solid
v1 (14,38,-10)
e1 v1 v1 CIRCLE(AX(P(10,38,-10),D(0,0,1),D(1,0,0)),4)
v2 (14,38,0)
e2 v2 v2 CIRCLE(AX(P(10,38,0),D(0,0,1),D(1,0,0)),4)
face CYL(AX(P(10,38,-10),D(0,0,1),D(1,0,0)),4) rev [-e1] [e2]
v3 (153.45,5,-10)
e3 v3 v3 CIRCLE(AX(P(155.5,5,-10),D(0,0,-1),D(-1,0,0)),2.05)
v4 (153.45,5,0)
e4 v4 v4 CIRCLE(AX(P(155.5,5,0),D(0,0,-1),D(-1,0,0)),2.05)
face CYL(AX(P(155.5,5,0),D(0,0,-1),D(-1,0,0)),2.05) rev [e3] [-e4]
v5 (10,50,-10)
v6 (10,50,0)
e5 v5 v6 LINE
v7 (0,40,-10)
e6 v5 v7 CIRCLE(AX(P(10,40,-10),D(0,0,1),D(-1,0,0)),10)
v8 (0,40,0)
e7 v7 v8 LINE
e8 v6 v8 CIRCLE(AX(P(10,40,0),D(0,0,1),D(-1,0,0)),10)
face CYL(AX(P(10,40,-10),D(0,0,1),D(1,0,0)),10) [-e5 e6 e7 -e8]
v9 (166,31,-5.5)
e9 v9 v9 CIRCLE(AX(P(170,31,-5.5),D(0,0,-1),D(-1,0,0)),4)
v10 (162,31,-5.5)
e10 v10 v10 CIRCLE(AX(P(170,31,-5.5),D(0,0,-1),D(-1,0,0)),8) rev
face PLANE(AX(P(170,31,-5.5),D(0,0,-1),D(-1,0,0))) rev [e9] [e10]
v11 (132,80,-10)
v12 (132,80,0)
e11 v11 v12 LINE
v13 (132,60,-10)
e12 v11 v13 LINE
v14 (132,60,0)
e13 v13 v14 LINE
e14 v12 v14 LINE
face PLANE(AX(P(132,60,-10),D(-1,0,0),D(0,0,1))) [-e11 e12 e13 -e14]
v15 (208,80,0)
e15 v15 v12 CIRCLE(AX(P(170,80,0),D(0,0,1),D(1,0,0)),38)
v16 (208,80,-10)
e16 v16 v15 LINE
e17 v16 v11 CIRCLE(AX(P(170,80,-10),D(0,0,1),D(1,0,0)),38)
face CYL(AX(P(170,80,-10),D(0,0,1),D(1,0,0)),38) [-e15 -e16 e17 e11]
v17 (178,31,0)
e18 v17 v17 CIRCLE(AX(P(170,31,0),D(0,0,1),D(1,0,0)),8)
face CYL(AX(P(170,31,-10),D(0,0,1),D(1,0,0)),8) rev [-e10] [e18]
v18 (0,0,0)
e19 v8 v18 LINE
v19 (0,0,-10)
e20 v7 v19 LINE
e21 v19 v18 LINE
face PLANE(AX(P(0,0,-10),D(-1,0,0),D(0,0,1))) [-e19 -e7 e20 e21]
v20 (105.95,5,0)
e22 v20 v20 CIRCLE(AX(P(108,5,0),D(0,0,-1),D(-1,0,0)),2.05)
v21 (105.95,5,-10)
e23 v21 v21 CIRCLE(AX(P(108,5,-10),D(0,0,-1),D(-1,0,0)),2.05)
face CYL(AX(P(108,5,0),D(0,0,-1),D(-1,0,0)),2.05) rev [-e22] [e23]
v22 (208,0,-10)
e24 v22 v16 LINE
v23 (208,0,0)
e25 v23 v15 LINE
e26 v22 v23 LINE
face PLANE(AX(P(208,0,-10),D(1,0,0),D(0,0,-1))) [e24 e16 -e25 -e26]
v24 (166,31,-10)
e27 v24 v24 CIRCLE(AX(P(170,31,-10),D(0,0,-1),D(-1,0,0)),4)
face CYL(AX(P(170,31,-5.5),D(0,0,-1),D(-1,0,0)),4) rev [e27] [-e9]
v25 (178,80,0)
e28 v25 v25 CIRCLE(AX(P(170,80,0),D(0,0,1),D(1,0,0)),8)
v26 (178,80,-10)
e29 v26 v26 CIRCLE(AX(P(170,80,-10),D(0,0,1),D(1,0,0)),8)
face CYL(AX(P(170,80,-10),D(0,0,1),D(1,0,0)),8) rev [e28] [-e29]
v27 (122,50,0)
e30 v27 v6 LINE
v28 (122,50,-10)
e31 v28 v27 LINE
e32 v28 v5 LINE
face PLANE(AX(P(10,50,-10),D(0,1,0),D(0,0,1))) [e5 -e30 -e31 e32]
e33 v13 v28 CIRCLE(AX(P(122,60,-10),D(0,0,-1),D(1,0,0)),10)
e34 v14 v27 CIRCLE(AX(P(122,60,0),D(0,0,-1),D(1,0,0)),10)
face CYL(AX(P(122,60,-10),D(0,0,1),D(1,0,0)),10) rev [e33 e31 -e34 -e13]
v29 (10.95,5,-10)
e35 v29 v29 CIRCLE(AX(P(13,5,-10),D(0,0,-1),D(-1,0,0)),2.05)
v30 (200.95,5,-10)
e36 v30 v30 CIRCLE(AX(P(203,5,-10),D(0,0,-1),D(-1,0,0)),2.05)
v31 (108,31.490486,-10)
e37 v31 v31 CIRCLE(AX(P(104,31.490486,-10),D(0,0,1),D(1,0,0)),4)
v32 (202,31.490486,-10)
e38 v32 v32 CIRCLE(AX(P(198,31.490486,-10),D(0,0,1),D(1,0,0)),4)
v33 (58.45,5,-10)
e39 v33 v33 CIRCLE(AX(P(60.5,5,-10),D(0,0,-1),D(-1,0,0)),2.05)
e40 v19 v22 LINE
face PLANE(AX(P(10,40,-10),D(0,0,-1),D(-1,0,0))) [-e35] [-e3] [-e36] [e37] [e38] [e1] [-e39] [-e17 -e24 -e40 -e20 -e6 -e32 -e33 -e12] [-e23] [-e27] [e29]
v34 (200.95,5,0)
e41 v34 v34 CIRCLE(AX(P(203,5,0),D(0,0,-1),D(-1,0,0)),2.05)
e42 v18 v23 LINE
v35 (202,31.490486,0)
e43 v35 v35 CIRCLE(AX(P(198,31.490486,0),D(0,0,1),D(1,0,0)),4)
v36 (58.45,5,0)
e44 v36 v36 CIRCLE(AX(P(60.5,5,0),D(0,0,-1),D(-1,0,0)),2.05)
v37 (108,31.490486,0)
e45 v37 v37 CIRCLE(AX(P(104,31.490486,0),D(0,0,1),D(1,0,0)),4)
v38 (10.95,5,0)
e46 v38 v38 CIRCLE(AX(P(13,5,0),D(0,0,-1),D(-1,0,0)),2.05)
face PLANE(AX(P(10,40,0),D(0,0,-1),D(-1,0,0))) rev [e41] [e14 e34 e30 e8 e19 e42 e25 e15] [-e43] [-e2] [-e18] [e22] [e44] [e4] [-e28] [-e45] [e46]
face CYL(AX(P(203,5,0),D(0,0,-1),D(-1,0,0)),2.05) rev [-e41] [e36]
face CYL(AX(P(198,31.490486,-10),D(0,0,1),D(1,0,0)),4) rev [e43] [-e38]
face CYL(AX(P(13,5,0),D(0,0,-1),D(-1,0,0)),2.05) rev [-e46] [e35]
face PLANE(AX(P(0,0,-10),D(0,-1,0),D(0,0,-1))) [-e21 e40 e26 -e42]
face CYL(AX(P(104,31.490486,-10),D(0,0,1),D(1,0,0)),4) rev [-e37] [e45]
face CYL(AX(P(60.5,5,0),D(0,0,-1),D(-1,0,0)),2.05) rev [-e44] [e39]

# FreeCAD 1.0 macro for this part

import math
import FreeCAD as App
import Part
import Sketcher

V = App.Vector

doc = App.newDocument("Part")
params = doc.addObject("Spreadsheet::Sheet", "Params")
for row, (alias, value) in enumerate([
    ("sketch1_diameter", "16 mm"),
    ("sketch1_radius", "38 mm"),
    ("sketch1_radius2", "10 mm"),
    ("sketch1_width", "208 mm"),
    ("sketch1_height", "80 mm"),
    ("pad1_length", "10 mm"),
    ("sketch2_diameter", "4.1 mm"),
    ("sketch3_diameter", "16 mm"),
    ("sketch3_diameter2", "8 mm"),
    ("pad2_length", "4.5 mm"),
    ("sketch4_diameter", "8 mm"),
], start=1):
    params.set(f"A{row}", alias)
    params.set(f"B{row}", "=" + value)
    params.setAlias(f"B{row}", alias)

body = doc.addObject("PartDesign::Body", "Body")

sketch1 = body.newObject("Sketcher::SketchObject", "Sketch")
sketch1.AttachmentSupport = (doc.getObject("XY_Plane"), [""])
sketch1.MapMode = "FlatFace"
sketch1.addGeometry(Part.LineSegment(V(0, 0, 0), V(208, 0, 0)), False)
sketch1.addGeometry(Part.LineSegment(V(208, 0, 0), V(208, 80, 0)), False)
sketch1.addGeometry(Part.ArcOfCircle(Part.Circle(V(170, 80, 0), V(0, 0, 1), 38), math.radians(0), math.radians(180)), False)
sketch1.addGeometry(Part.LineSegment(V(132, 80, 0), V(132, 60, 0)), False)
sketch1.addGeometry(Part.ArcOfCircle(Part.Circle(V(122, 60, 0), V(0, 0, 1), 10), math.radians(-90), math.radians(0)), False)
sketch1.addGeometry(Part.LineSegment(V(122, 50, 0), V(10, 50, 0)), False)
sketch1.addGeometry(Part.ArcOfCircle(Part.Circle(V(10, 40, 0), V(0, 0, 1), 10), math.radians(90), math.radians(180)), False)
sketch1.addGeometry(Part.LineSegment(V(0, 40, 0), V(0, 0, 0)), False)
sketch1.addGeometry(Part.Circle(V(170, 31, 0), V(0, 0, 1), 8), False)
sketch1.addGeometry(Part.Circle(V(170, 80, 0), V(0, 0, 1), 8), False)
sketch1.addConstraint(Sketcher.Constraint("Coincident", 0, 2, 1, 1))
sketch1.addConstraint(Sketcher.Constraint("Tangent", 1, 2, 2, 1))
sketch1.addConstraint(Sketcher.Constraint("Tangent", 2, 2, 3, 1))
sketch1.addConstraint(Sketcher.Constraint("Tangent", 3, 2, 4, 2))
sketch1.addConstraint(Sketcher.Constraint("Tangent", 4, 1, 5, 1))
sketch1.addConstraint(Sketcher.Constraint("Tangent", 5, 2, 6, 1))
sketch1.addConstraint(Sketcher.Constraint("Tangent", 6, 2, 7, 1))
sketch1.addConstraint(Sketcher.Constraint("Coincident", 7, 2, 0, 1))
sketch1.addConstraint(Sketcher.Constraint("Horizontal", 0))
sketch1.addConstraint(Sketcher.Constraint("Vertical", 1))
sketch1.addConstraint(Sketcher.Constraint("Vertical", 3))
sketch1.addConstraint(Sketcher.Constraint("Horizontal", 5))
sketch1.addConstraint(Sketcher.Constraint("Vertical", 7))
sketch1.addConstraint(Sketcher.Constraint("Coincident", 7, 2, -1, 1))
sketch1.addConstraint(Sketcher.Constraint("Coincident", 9, 3, 2, 3))
sketch1.addConstraint(Sketcher.Constraint("Equal", 4, 6))
sketch1.addConstraint(Sketcher.Constraint("Equal", 8, 9))
sketch1.addConstraint(Sketcher.Constraint("Vertical", 2, 3, 8, 3))
sketch1.addConstraint(Sketcher.Constraint("Diameter", 8, 16.0))
sketch1.addConstraint(Sketcher.Constraint("Radius", 2, 38.0))
sketch1.addConstraint(Sketcher.Constraint("Radius", 4, 10.0))
sketch1.addConstraint(Sketcher.Constraint("DistanceX", 0, 1, 0, 2, 208.0))
sketch1.addConstraint(Sketcher.Constraint("DistanceY", 1, 1, 1, 2, 80.0))
sketch1.addConstraint(Sketcher.Constraint("DistanceY", 3, 2, 3, 1, 20.0))
sketch1.addConstraint(Sketcher.Constraint("DistanceY", -1, 1, 8, 3, 31.0))
sketch1.setExpression("Constraints[18]", "Params.sketch1_diameter")
sketch1.setExpression("Constraints[19]", "Params.sketch1_radius")
sketch1.setExpression("Constraints[20]", "Params.sketch1_radius2")
sketch1.setExpression("Constraints[21]", "Params.sketch1_width")
sketch1.setExpression("Constraints[22]", "Params.sketch1_height")
pad1 = body.newObject("PartDesign::Pad", "Pad")
pad1.Profile = sketch1
pad1.setExpression("Length", "Params.pad1_length")
pad1.Reversed = True

sketch2 = body.newObject("Sketcher::SketchObject", "Sketch001")
sketch2.AttachmentSupport = (doc.getObject("XY_Plane"), [""])
sketch2.MapMode = "FlatFace"
sketch2.AttachmentOffset = App.Placement(V(0, 0, -10), App.Rotation())
sketch2.addGeometry(Part.Circle(V(203, 5, 0), V(0, 0, 1), 2.05), False)
sketch2.addGeometry(Part.Circle(V(155.5, 5, 0), V(0, 0, 1), 2.05), False)
sketch2.addGeometry(Part.Circle(V(108, 5, 0), V(0, 0, 1), 2.05), False)
sketch2.addGeometry(Part.Circle(V(60.5, 5, 0), V(0, 0, 1), 2.05), False)
sketch2.addGeometry(Part.Circle(V(13, 5, 0), V(0, 0, 1), 2.05), False)
sketch2.addConstraint(Sketcher.Constraint("Equal", 0, 1))
sketch2.addConstraint(Sketcher.Constraint("Equal", 1, 2))
sketch2.addConstraint(Sketcher.Constraint("Equal", 2, 3))
sketch2.addConstraint(Sketcher.Constraint("Equal", 3, 4))
sketch2.addConstraint(Sketcher.Constraint("Horizontal", 0, 3, 1, 3))
sketch2.addConstraint(Sketcher.Constraint("Horizontal", 1, 3, 2, 3))
sketch2.addConstraint(Sketcher.Constraint("Horizontal", 2, 3, 3, 3))
sketch2.addConstraint(Sketcher.Constraint("Horizontal", 3, 3, 4, 3))
sketch2.addConstraint(Sketcher.Constraint("Diameter", 0, 4.1))
sketch2.addConstraint(Sketcher.Constraint("DistanceX", -1, 1, 0, 3, 203.0))
sketch2.addConstraint(Sketcher.Constraint("DistanceY", -1, 1, 0, 3, 5.0))
sketch2.addConstraint(Sketcher.Constraint("DistanceX", -1, 1, 2, 3, 108.0))
sketch2.addConstraint(Sketcher.Constraint("DistanceX", -1, 1, 4, 3, 13.0))
sketch2.addConstraint(Sketcher.Constraint("DistanceX", 3, 3, 1, 3, 95.0))
sketch2.addConstraint(Sketcher.Constraint("DistanceX", -1, 1, 1, 3, 155.5))
sketch2.setExpression("Constraints[8]", "Params.sketch2_diameter")
pocket1 = body.newObject("PartDesign::Pocket", "Pocket")
pocket1.Profile = sketch2
pocket1.Type = "ThroughAll"
pocket1.Reversed = True

sketch3 = body.newObject("Sketcher::SketchObject", "Sketch002")
sketch3.AttachmentSupport = (doc.getObject("XY_Plane"), [""])
sketch3.MapMode = "FlatFace"
sketch3.AttachmentOffset = App.Placement(V(0, 0, -5.5), App.Rotation())
sketch3.addGeometry(Part.Circle(V(170, 31, 0), V(0, 0, 1), 8), False)
sketch3.addGeometry(Part.Circle(V(170, 31, 0), V(0, 0, 1), 4), False)
sketch3.addConstraint(Sketcher.Constraint("Coincident", 1, 3, 0, 3))
sketch3.addConstraint(Sketcher.Constraint("Diameter", 0, 16.0))
sketch3.addConstraint(Sketcher.Constraint("Diameter", 1, 8.0))
sketch3.addConstraint(Sketcher.Constraint("DistanceX", -1, 1, 0, 3, 170.0))
sketch3.addConstraint(Sketcher.Constraint("DistanceY", -1, 1, 0, 3, 31.0))
sketch3.setExpression("Constraints[1]", "Params.sketch3_diameter")
sketch3.setExpression("Constraints[2]", "Params.sketch3_diameter2")
pad2 = body.newObject("PartDesign::Pad", "Pad001")
pad2.Profile = sketch3
pad2.setExpression("Length", "Params.pad2_length")
pad2.Reversed = True

sketch4 = body.newObject("Sketcher::SketchObject", "Sketch003")
sketch4.AttachmentSupport = (doc.getObject("XY_Plane"), [""])
sketch4.MapMode = "FlatFace"
sketch4.addGeometry(Part.Circle(V(198, 31.490486, 0), V(0, 0, 1), 4), False)
sketch4.addGeometry(Part.Circle(V(104, 31.490486, 0), V(0, 0, 1), 4), False)
sketch4.addGeometry(Part.Circle(V(10, 38, 0), V(0, 0, 1), 4), False)
sketch4.addConstraint(Sketcher.Constraint("Equal", 0, 1))
sketch4.addConstraint(Sketcher.Constraint("Equal", 1, 2))
sketch4.addConstraint(Sketcher.Constraint("Horizontal", 0, 3, 1, 3))
sketch4.addConstraint(Sketcher.Constraint("Diameter", 0, 8.0))
sketch4.addConstraint(Sketcher.Constraint("DistanceX", -1, 1, 0, 3, 198.0))
sketch4.addConstraint(Sketcher.Constraint("DistanceX", -1, 1, 1, 3, 104.0))
sketch4.addConstraint(Sketcher.Constraint("DistanceX", -1, 1, 2, 3, 10.0))
sketch4.addConstraint(Sketcher.Constraint("DistanceY", -1, 1, 2, 3, 38.0))
sketch4.addConstraint(Sketcher.Constraint("DistanceY", -1, 1, 0, 3, 31.490486))
sketch4.setExpression("Constraints[3]", "Params.sketch4_diameter")
pocket2 = body.newObject("PartDesign::Pocket", "Pocket001")
pocket2.Profile = sketch4
pocket2.Type = "ThroughAll"

doc.recompute()
